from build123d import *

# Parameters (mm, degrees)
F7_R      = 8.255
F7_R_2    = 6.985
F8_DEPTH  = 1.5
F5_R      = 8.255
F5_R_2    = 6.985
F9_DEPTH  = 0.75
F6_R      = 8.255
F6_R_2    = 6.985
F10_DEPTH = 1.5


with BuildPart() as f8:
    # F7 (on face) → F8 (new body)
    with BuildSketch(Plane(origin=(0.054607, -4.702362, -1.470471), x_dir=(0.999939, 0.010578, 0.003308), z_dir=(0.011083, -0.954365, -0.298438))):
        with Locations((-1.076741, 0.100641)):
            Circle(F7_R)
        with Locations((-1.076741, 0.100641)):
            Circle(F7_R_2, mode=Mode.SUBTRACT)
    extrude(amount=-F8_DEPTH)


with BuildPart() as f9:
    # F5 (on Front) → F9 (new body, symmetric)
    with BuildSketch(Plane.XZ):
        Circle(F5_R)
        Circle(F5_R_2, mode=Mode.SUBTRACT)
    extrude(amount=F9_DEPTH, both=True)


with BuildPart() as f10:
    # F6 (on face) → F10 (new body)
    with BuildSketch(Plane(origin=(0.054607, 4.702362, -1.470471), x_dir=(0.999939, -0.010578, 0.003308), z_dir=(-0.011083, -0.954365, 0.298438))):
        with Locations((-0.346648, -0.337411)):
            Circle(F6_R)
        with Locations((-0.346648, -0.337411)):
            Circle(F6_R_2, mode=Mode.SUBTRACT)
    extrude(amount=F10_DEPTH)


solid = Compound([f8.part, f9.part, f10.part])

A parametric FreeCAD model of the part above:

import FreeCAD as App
import Part
import Sketcher
from FreeCAD import Vector
Q = App.Units.Quantity

doc = App.newDocument("Part")
body = doc.addObject("PartDesign::Body", "Body")

# Sketch on an angled plane
sketch1 = body.newObject("Sketcher::SketchObject", "Sketch")
sketch1.Placement = App.Placement(Vector(0.054607, -4.702362, -1.470471), App.Rotation(Vector(0.999938582, 0.010577822, 0.003307944), Vector(-0.000000162, -0.298456239, 0.95442332), Vector(0.011082997, -0.954364701, -0.298437907), "ZXY"))
sketch1.addGeometry([
    Part.Circle(Vector(-1, 0, 0), Vector(0, 0, 1), 8),
    Part.Circle(Vector(-1, 0, 0), Vector(0, 0, 1), 7),
], False)
sketch1.addConstraint([
    Sketcher.Constraint("Coincident", 1, 3, 0, 3),
    Sketcher.Constraint("Diameter", 0, Q("0.65 in")),
    Sketcher.Constraint("Diameter", 1, Q("0.55 in")),
    Sketcher.Constraint("DistanceX", 0, 3, -1, 1, Q("1.076741 mm")),
    Sketcher.Constraint("DistanceY", -1, 1, 0, 3, Q("0.100641 mm")),
])
pad1 = body.newObject("PartDesign::Pad", "Pad")
pad1.Profile = sketch1
pad1.Length = 1.5
pad1.Reversed = True
body2 = doc.addObject("PartDesign::Body", "Body001")

# Sketch on XZ plane
sketch2 = body2.newObject("Sketcher::SketchObject", "Sketch001")
sketch2.AttachmentSupport = (doc.getObject("XZ_Plane001"), [""])
sketch2.MapMode = "FlatFace"
sketch2.addGeometry([
    Part.Circle(Vector(0, 0, 0), Vector(0, 0, 1), 8),
    Part.Circle(Vector(0, 0, 0), Vector(0, 0, 1), 7),
], False)
sketch2.addConstraint([
    Sketcher.Constraint("Coincident", 0, 3, -1, 1),
    Sketcher.Constraint("Coincident", 1, 3, -1, 1),
    Sketcher.Constraint("Diameter", 0, Q("0.65 in")),
    Sketcher.Constraint("Diameter", 1, Q("0.55 in")),
])
pad2 = body2.newObject("PartDesign::Pad", "Pad001")
pad2.Profile = sketch2
pad2.Length = 1.5
pad2.Midplane = True
body3 = doc.addObject("PartDesign::Body", "Body002")

# Sketch on an angled plane
sketch3 = body3.newObject("Sketcher::SketchObject", "Sketch002")
sketch3.Placement = App.Placement(Vector(0.054607, 4.702362, -1.470471), App.Rotation(Vector(0.999938582, -0.010577822, 0.003307944), Vector(-0.000000162, 0.298456239, 0.95442332), Vector(-0.011082997, -0.954364701, 0.298437907), "ZXY"))
sketch3.addGeometry([
    Part.Circle(Vector(0, 0, 0), Vector(0, 0, 1), 8),
    Part.Circle(Vector(0, 0, 0), Vector(0, 0, 1), 7),
], False)
sketch3.addConstraint([
    Sketcher.Constraint("Coincident", 1, 3, 0, 3),
    Sketcher.Constraint("Diameter", 0, Q("0.65 in")),
    Sketcher.Constraint("Diameter", 1, Q("0.55 in")),
    Sketcher.Constraint("DistanceY", 0, 3, -1, 1, Q("0.337411 mm")),
    Sketcher.Constraint("DistanceX", 0, 3, -1, 1, Q("0.346648 mm")),
])
pad3 = body3.newObject("PartDesign::Pad", "Pad002")
pad3.Profile = sketch3
pad3.Length = 1.5

doc.recompute()
